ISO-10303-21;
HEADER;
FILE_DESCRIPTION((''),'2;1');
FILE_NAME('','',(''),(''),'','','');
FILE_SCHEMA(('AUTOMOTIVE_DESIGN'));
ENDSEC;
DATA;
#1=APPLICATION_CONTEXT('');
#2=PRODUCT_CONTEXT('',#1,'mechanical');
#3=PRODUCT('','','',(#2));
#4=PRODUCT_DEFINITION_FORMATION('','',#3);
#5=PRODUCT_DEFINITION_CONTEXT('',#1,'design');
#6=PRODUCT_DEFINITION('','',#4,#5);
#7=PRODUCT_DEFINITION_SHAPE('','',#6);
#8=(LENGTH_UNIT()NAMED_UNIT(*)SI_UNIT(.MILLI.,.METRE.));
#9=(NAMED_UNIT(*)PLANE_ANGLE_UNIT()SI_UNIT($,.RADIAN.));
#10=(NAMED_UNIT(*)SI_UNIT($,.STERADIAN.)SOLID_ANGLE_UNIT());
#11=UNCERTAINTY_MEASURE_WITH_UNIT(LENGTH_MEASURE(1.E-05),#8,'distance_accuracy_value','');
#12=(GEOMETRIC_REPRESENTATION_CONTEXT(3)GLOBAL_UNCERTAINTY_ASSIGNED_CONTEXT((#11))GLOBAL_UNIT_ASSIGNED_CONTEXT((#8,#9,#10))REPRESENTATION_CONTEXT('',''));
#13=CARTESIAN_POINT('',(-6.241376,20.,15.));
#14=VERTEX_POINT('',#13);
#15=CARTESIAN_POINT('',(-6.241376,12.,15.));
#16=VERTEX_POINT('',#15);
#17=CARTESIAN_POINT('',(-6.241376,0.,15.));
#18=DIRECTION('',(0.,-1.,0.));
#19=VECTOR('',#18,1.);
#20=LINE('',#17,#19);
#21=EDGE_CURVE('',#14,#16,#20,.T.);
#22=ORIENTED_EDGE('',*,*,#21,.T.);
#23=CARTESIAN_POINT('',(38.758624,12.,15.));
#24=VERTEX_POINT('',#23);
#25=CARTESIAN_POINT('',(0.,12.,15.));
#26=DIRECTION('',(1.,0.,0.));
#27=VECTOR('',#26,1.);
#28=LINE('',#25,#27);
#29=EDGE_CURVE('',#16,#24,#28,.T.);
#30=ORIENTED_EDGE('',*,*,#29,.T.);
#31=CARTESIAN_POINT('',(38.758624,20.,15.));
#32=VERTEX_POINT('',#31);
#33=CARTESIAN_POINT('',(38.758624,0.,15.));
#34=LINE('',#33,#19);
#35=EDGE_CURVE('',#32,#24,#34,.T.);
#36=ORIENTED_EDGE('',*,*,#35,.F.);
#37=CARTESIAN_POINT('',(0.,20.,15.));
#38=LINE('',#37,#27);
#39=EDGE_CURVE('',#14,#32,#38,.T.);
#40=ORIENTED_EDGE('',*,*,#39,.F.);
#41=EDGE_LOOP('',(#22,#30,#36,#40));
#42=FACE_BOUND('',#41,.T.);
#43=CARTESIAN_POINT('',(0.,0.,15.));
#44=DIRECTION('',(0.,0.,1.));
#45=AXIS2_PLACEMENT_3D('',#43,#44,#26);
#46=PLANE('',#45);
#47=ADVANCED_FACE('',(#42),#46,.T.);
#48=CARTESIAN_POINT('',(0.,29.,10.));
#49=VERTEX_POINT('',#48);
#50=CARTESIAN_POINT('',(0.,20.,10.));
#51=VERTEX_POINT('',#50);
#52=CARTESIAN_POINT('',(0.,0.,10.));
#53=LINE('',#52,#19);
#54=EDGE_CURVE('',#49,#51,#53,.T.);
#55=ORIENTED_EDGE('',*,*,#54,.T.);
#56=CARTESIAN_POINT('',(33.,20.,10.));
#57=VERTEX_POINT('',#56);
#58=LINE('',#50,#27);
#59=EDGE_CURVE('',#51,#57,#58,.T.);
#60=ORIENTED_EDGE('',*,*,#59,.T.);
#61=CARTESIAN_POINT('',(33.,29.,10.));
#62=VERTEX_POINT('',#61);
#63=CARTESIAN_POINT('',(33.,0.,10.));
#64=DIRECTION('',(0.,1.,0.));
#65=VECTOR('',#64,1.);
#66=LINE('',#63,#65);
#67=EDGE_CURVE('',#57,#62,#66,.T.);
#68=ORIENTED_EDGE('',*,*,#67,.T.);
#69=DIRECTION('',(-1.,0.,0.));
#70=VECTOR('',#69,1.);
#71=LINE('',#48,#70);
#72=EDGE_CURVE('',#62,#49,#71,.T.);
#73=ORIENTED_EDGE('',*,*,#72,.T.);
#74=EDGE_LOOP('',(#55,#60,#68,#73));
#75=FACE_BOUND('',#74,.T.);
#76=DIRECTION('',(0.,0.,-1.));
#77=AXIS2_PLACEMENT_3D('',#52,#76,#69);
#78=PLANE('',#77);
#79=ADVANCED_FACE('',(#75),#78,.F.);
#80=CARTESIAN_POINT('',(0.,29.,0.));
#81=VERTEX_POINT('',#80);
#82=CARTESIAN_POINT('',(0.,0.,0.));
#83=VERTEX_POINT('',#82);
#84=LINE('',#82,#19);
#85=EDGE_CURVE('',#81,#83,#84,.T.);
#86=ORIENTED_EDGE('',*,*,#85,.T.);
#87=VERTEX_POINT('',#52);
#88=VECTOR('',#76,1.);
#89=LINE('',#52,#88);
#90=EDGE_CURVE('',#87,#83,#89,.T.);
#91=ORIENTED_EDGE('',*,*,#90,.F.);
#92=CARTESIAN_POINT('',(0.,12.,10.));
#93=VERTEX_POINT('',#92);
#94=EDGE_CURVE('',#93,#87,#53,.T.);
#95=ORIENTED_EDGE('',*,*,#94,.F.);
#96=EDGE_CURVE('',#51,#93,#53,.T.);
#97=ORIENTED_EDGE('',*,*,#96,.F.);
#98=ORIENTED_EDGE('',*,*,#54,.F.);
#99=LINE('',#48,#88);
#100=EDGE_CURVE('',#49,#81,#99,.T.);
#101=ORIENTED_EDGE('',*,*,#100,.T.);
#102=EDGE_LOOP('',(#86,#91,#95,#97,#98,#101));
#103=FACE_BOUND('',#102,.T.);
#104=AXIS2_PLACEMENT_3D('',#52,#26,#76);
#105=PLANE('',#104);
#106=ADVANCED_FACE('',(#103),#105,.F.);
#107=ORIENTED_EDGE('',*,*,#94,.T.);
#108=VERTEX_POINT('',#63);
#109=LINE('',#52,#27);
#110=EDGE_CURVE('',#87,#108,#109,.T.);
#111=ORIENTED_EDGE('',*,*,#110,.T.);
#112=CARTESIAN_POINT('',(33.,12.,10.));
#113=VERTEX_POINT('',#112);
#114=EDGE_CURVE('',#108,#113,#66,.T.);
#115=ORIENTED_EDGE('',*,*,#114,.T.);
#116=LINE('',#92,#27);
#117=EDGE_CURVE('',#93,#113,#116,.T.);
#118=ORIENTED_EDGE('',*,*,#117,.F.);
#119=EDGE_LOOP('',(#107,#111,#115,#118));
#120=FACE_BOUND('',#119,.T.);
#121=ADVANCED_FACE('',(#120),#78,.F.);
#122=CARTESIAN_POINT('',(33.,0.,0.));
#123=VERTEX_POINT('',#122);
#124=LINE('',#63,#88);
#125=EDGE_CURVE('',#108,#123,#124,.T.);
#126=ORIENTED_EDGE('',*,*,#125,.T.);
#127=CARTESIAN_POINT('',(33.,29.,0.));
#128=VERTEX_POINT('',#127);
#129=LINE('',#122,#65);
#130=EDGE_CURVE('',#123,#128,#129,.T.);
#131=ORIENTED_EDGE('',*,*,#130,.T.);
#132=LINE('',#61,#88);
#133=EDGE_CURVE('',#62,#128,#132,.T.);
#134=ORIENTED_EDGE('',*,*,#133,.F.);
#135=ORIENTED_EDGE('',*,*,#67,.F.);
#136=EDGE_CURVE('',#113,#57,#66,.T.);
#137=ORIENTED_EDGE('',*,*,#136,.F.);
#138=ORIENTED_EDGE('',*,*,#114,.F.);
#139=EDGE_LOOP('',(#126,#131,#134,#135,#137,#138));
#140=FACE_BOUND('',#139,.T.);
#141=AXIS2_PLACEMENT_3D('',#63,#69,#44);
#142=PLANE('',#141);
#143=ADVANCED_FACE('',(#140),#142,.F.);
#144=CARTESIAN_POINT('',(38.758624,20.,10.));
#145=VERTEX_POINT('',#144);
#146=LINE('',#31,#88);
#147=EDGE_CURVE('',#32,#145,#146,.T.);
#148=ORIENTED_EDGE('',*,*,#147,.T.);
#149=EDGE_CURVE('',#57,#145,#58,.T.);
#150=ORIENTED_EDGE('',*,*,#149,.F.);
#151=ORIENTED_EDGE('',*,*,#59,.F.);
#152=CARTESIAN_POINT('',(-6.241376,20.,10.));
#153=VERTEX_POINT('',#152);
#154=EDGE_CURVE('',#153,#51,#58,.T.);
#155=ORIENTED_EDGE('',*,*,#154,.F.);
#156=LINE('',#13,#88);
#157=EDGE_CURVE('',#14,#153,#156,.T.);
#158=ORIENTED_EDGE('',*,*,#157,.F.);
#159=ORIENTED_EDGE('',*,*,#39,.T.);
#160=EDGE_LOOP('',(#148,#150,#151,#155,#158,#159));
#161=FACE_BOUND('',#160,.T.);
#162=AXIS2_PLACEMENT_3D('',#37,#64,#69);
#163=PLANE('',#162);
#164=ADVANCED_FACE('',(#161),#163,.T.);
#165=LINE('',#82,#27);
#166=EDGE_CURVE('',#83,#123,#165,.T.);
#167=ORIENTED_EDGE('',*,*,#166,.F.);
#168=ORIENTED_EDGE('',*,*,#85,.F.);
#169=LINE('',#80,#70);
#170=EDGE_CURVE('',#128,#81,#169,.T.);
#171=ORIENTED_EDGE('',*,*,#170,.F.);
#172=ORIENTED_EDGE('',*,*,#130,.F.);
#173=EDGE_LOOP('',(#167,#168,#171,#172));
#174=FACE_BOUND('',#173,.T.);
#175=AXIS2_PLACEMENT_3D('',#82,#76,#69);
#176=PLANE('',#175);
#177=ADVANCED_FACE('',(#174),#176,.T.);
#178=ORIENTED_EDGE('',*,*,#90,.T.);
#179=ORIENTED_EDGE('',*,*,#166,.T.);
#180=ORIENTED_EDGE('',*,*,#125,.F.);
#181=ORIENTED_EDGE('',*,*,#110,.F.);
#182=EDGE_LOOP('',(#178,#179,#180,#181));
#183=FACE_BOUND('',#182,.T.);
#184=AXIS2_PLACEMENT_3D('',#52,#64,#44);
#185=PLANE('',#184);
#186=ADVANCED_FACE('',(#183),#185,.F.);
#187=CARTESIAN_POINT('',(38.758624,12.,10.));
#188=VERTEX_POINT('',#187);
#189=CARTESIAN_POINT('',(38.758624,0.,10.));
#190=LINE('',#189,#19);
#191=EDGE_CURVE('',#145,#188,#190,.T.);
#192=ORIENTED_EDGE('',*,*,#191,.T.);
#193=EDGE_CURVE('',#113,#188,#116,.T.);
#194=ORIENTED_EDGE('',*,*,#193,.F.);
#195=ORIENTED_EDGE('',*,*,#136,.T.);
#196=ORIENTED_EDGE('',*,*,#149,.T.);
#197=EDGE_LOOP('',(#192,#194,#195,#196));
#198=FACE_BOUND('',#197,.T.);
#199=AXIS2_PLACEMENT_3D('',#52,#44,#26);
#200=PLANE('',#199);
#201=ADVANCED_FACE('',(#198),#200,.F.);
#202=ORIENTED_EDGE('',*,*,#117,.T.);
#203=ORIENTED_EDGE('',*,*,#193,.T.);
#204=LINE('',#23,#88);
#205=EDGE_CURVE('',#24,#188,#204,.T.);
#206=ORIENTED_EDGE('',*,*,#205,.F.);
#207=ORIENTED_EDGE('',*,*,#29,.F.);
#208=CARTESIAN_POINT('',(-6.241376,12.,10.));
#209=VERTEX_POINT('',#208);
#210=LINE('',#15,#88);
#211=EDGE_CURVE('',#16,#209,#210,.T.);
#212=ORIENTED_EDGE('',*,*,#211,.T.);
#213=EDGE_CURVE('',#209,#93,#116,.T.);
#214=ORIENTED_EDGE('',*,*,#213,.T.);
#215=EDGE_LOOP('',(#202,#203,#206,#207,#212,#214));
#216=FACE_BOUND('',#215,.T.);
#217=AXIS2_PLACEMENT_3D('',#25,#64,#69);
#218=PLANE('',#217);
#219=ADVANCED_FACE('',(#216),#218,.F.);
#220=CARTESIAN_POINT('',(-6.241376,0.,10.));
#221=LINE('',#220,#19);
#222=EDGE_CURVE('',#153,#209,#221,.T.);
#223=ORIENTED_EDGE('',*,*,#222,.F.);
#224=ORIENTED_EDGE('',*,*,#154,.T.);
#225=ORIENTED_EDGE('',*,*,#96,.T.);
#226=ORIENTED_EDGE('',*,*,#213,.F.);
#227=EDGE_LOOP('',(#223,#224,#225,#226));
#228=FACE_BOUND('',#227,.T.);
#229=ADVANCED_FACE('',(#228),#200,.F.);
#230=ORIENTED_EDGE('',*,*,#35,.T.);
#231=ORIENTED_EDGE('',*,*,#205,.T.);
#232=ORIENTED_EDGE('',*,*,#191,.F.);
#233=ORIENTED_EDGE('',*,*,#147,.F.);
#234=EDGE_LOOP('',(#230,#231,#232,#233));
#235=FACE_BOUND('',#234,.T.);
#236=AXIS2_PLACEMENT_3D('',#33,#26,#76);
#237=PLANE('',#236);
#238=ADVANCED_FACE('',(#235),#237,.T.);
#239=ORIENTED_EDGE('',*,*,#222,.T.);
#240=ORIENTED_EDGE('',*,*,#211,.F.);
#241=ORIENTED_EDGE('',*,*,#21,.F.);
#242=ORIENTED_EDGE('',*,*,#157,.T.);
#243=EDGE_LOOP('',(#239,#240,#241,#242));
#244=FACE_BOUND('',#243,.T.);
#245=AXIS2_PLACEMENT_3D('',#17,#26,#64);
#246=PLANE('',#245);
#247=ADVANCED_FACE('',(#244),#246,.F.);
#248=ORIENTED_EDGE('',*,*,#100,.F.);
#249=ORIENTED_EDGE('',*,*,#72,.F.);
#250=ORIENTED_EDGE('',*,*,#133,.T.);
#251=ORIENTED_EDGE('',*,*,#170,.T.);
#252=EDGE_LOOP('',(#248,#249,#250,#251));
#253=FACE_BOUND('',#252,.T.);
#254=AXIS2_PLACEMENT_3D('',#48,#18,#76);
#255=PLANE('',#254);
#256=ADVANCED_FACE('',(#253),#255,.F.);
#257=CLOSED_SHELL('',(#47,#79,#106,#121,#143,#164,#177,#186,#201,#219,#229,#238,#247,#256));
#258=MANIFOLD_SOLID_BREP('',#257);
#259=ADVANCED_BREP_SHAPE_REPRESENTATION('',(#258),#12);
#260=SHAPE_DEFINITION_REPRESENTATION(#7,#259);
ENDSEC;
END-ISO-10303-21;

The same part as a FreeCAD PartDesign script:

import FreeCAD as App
import Part
import Sketcher
from FreeCAD import Vector

doc = App.newDocument("Part")
body = doc.addObject("PartDesign::Body", "Body")

sketch1 = body.newObject("Sketcher::SketchObject", "Sketch")
sketch1.AttachmentSupport = (doc.getObject("XY_Plane"), [""])
sketch1.MapMode = "FlatFace"
sketch1.addGeometry([
    Part.LineSegment(Vector(0, 29, 0), Vector(0, 0, 0)),
    Part.LineSegment(Vector(0, 0, 0), Vector(33, 0, 0)),
    Part.LineSegment(Vector(33, 0, 0), Vector(33, 29, 0)),
    Part.LineSegment(Vector(33, 29, 0), Vector(0, 29, 0)),
], False)
sketch1.addConstraint([
    Sketcher.Constraint("Coincident", 0, 2, 1, 1),
    Sketcher.Constraint("Coincident", 1, 2, 2, 1),
    Sketcher.Constraint("Coincident", 2, 2, 3, 1),
    Sketcher.Constraint("Coincident", 3, 2, 0, 1),
    Sketcher.Constraint("Vertical", 0),
    Sketcher.Constraint("Horizontal", 1),
    Sketcher.Constraint("Vertical", 2),
    Sketcher.Constraint("Horizontal", 3),
    Sketcher.Constraint("Coincident", 0, 2, -1, 1),
    Sketcher.Constraint("DistanceX", 1, 1, 1, 2, 33.0),
    Sketcher.Constraint("DistanceY", 0, 2, 0, 1, 29.0),
])
pad1 = body.newObject("PartDesign::Pad", "Pad")
pad1.Profile = sketch1
pad1.Length = 10

sketch2 = body.newObject("Sketcher::SketchObject", "Sketch001")
sketch2.AttachmentSupport = (doc.getObject("XY_Plane"), [""])
sketch2.MapMode = "FlatFace"
sketch2.AttachmentOffset = App.Placement(Vector(0, 0, 10), App.Rotation())
sketch2.addGeometry([
    Part.LineSegment(Vector(-6.241376, 20, 0), Vector(-6.241376, 12, 0)),
    Part.LineSegment(Vector(-6.241376, 12, 0), Vector(38.758624, 12, 0)),
    Part.LineSegment(Vector(38.758624, 12, 0), Vector(38.758624, 20, 0)),
    Part.LineSegment(Vector(38.758624, 20, 0), Vector(-6.241376, 20, 0)),
], False)
sketch2.addConstraint([
    Sketcher.Constraint("Coincident", 0, 2, 1, 1),
    Sketcher.Constraint("Coincident", 1, 2, 2, 1),
    Sketcher.Constraint("Coincident", 2, 2, 3, 1),
    Sketcher.Constraint("Coincident", 3, 2, 0, 1),
    Sketcher.Constraint("Vertical", 0),
    Sketcher.Constraint("Horizontal", 1),
    Sketcher.Constraint("Vertical", 2),
    Sketcher.Constraint("Horizontal", 3),
    Sketcher.Constraint("DistanceX", 1, 1, 1, 2, 45.0),
    Sketcher.Constraint("DistanceY", 0, 2, 0, 1, 8.0),
    Sketcher.Constraint("DistanceY", -1, 1, 0, 2, 12.0),
    Sketcher.Constraint("DistanceX", 0, 2, -1, 1, 6.241376),
])
pad2 = body.newObject("PartDesign::Pad", "Pad001")
pad2.Profile = sketch2
pad2.Length = 5

doc.recompute()
